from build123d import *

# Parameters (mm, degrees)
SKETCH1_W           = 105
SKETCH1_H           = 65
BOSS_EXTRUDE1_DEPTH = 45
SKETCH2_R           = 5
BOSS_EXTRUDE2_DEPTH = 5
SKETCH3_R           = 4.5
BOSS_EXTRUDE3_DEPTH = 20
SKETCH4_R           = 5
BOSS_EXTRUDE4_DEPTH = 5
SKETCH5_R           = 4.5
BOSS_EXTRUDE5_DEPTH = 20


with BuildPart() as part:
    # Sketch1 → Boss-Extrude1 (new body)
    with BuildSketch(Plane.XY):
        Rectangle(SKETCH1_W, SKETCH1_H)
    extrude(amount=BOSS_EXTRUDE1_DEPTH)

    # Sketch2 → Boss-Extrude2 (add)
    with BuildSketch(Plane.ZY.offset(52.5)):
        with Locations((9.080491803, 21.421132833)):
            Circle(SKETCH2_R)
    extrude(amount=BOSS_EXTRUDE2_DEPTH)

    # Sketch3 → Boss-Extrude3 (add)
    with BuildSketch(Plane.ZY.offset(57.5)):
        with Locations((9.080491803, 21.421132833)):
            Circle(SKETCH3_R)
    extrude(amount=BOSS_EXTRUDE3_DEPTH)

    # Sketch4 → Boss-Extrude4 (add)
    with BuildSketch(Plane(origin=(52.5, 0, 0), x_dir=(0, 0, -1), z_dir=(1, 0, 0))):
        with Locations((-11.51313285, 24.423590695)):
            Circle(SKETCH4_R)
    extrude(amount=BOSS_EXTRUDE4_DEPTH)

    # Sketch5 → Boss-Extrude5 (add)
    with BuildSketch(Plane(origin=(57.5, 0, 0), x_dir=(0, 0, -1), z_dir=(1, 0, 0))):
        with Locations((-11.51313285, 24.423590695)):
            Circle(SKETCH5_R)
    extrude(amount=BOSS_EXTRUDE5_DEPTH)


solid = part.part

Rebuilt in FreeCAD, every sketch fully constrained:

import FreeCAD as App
import Part
import Sketcher

doc = App.newDocument("Part")
params = doc.addObject("Spreadsheet::Sheet", "Params")
for row, (alias, value) in enumerate([
    ("sketch1_width", "105 mm"),
    ("sketch1_height", "65 mm"),
    ("pad1_length", "45 mm"),
    ("sketch2_diameter", "10 mm"),
    ("pad2_length", "5 mm"),
    ("sketch3_diameter", "9 mm"),
    ("pad3_length", "20 mm"),
    ("sketch4_diameter", "10 mm"),
    ("pad4_length", "5 mm"),
    ("sketch5_diameter", "9 mm"),
    ("pad5_length", "20 mm"),
], start=1):
    params.set(f"A{row}", alias)
    params.set(f"B{row}", "=" + value)
    params.setAlias(f"B{row}", alias)

body = doc.addObject("PartDesign::Body", "Body")

sketch1 = body.newObject("Sketcher::SketchObject", "Sketch")
sketch1.AttachmentSupport = (doc.getObject("XY_Plane"), [""])
sketch1.MapMode = "FlatFace"
sketch1.addGeometry(Part.LineSegment(App.Vector(-52, 32, 0), App.Vector(-52, -32, 0)), False)
sketch1.addGeometry(Part.LineSegment(App.Vector(-52, -32, 0), App.Vector(52, -32, 0)), False)
sketch1.addGeometry(Part.LineSegment(App.Vector(52, -32, 0), App.Vector(52, 32, 0)), False)
sketch1.addGeometry(Part.LineSegment(App.Vector(52, 32, 0), App.Vector(-52, 32, 0)), False)
sketch1.addConstraint(Sketcher.Constraint("Coincident", 0, 2, 1, 1))
sketch1.addConstraint(Sketcher.Constraint("Coincident", 1, 2, 2, 1))
sketch1.addConstraint(Sketcher.Constraint("Coincident", 2, 2, 3, 1))
sketch1.addConstraint(Sketcher.Constraint("Coincident", 3, 2, 0, 1))
sketch1.addConstraint(Sketcher.Constraint("Vertical", 0))
sketch1.addConstraint(Sketcher.Constraint("Horizontal", 1))
sketch1.addConstraint(Sketcher.Constraint("Vertical", 2))
sketch1.addConstraint(Sketcher.Constraint("Horizontal", 3))
sketch1.addConstraint(Sketcher.Constraint("Symmetric", 0, 2, 2, 2, -1, 1))
sketch1.addConstraint(Sketcher.Constraint("DistanceX", 1, 1, 1, 2, 105.0))
sketch1.addConstraint(Sketcher.Constraint("DistanceY", 0, 2, 0, 1, 65.0))
sketch1.setExpression("Constraints[9]", "Params.sketch1_width")
sketch1.setExpression("Constraints[10]", "Params.sketch1_height")
pad1 = body.newObject("PartDesign::Pad", "Pad")
pad1.Profile = sketch1
pad1.setExpression("Length", "Params.pad1_length")

sketch2 = body.newObject("Sketcher::SketchObject", "Sketch001")
sketch2.AttachmentSupport = (doc.getObject("YZ_Plane"), [""])
sketch2.MapMode = "FlatFace"
sketch2.AttachmentOffset = App.Placement(App.Vector(0, 0, -52.5), App.Rotation())
sketch2.addGeometry(Part.Circle(App.Vector(21, 9, 0), App.Vector(0, 0, 1), 5), False)
sketch2.addConstraint(Sketcher.Constraint("Diameter", 0, 10.0))
sketch2.addConstraint(Sketcher.Constraint("DistanceY", -1, 1, 0, 3, 9.080492))
sketch2.addConstraint(Sketcher.Constraint("DistanceX", -1, 1, 0, 3, 21.421133))
sketch2.setExpression("Constraints[0]", "Params.sketch2_diameter")
pad2 = body.newObject("PartDesign::Pad", "Pad001")
pad2.Profile = sketch2
pad2.setExpression("Length", "Params.pad2_length")
pad2.Reversed = True

sketch3 = body.newObject("Sketcher::SketchObject", "Sketch002")
sketch3.AttachmentSupport = (doc.getObject("YZ_Plane"), [""])
sketch3.MapMode = "FlatFace"
sketch3.AttachmentOffset = App.Placement(App.Vector(0, 0, -57.5), App.Rotation())
sketch3.addGeometry(Part.Circle(App.Vector(21.4, 9.1, 0), App.Vector(0, 0, 1), 4.5), False)
sketch3.addConstraint(Sketcher.Constraint("Diameter", 0, 9.0))
sketch3.addConstraint(Sketcher.Constraint("DistanceY", -1, 1, 0, 3, 9.080492))
sketch3.addConstraint(Sketcher.Constraint("DistanceX", -1, 1, 0, 3, 21.421133))
sketch3.setExpression("Constraints[0]", "Params.sketch3_diameter")
pad3 = body.newObject("PartDesign::Pad", "Pad002")
pad3.Profile = sketch3
pad3.setExpression("Length", "Params.pad3_length")
pad3.Reversed = True

sketch4 = body.newObject("Sketcher::SketchObject", "Sketch003")
sketch4.AttachmentSupport = (doc.getObject("YZ_Plane"), [""])
sketch4.MapMode = "FlatFace"
sketch4.AttachmentOffset = App.Placement(App.Vector(0, 0, 52.5), App.Rotation())
sketch4.addGeometry(Part.Circle(App.Vector(24, 12, 0), App.Vector(0, 0, 1), 5), False)
sketch4.addConstraint(Sketcher.Constraint("Diameter", 0, 10.0))
sketch4.addConstraint(Sketcher.Constraint("DistanceX", -1, 1, 0, 3, 24.423591))
sketch4.addConstraint(Sketcher.Constraint("DistanceY", -1, 1, 0, 3, 11.513133))
sketch4.setExpression("Constraints[0]", "Params.sketch4_diameter")
pad4 = body.newObject("PartDesign::Pad", "Pad003")
pad4.Profile = sketch4
pad4.setExpression("Length", "Params.pad4_length")

sketch5 = body.newObject("Sketcher::SketchObject", "Sketch004")
sketch5.AttachmentSupport = (doc.getObject("YZ_Plane"), [""])
sketch5.MapMode = "FlatFace"
sketch5.AttachmentOffset = App.Placement(App.Vector(0, 0, 57.5), App.Rotation())
sketch5.addGeometry(Part.Circle(App.Vector(24.4, 11.5, 0), App.Vector(0, 0, 1), 4.5), False)
sketch5.addConstraint(Sketcher.Constraint("Diameter", 0, 9.0))
sketch5.addConstraint(Sketcher.Constraint("DistanceX", -1, 1, 0, 3, 24.423591))
sketch5.addConstraint(Sketcher.Constraint("DistanceY", -1, 1, 0, 3, 11.513133))
sketch5.setExpression("Constraints[0]", "Params.sketch5_diameter")
pad5 = body.newObject("PartDesign::Pad", "Pad004")
pad5.Profile = sketch5
pad5.setExpression("Length", "Params.pad5_length")

doc.recompute()
